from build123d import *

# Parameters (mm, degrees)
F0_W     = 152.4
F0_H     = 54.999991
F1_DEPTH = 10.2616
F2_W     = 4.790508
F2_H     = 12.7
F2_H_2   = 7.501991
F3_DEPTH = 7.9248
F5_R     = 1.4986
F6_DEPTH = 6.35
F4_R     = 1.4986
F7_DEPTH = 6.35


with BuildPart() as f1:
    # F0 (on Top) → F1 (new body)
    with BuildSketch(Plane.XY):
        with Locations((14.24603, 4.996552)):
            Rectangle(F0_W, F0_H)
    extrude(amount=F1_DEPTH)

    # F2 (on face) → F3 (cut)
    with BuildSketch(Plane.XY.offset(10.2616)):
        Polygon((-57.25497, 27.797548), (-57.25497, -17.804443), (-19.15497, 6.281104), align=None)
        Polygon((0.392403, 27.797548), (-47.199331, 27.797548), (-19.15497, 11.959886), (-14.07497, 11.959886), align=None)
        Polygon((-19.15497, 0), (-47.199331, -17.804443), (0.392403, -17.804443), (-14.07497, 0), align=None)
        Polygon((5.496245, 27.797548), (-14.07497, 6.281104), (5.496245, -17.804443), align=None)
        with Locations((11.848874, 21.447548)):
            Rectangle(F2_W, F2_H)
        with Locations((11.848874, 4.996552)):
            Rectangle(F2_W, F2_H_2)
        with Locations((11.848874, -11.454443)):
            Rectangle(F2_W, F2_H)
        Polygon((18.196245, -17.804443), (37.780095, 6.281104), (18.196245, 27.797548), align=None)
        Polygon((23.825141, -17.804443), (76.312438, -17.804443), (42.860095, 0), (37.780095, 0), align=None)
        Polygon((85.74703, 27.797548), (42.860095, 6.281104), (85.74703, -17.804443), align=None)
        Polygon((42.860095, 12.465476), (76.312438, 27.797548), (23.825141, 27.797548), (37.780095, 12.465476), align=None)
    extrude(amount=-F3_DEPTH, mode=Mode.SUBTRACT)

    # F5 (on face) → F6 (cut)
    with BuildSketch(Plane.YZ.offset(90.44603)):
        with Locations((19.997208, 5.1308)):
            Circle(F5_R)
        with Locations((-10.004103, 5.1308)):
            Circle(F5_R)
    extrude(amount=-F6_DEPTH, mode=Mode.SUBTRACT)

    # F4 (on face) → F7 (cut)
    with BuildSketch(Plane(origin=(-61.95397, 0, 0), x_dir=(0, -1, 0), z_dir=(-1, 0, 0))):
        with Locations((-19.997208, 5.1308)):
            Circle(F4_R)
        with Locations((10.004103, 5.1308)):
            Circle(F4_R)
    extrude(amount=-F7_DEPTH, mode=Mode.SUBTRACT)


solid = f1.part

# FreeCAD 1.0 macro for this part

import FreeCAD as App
import Part
import Sketcher
from FreeCAD import Vector
Q = App.Units.Quantity

doc = App.newDocument("Part")
body = doc.addObject("PartDesign::Body", "Body")

sketch1 = doc.addObject("Sketcher::SketchObject", "Sketch")
body.addObject(sketch1)
sketch1.AttachmentSupport = (doc.XY_Plane, [""])
sketch1.MapMode = "FlatFace"
sketch1.addGeometry([
    Part.LineSegment(Vector(-62, 32, 0), Vector(-62, -23, 0)),
    Part.LineSegment(Vector(-62, -23, 0), Vector(90, -23, 0)),
    Part.LineSegment(Vector(90, -23, 0), Vector(90, 32, 0)),
    Part.LineSegment(Vector(90, 32, 0), Vector(-62, 32, 0)),
], False)
sketch1.addConstraint([
    Sketcher.Constraint("Coincident", 0, 2, 1, 1),
    Sketcher.Constraint("Coincident", 1, 2, 2, 1),
    Sketcher.Constraint("Coincident", 2, 2, 3, 1),
    Sketcher.Constraint("Coincident", 3, 2, 0, 1),
    Sketcher.Constraint("Vertical", 0),
    Sketcher.Constraint("Horizontal", 1),
    Sketcher.Constraint("Vertical", 2),
    Sketcher.Constraint("Horizontal", 3),
    Sketcher.Constraint("DistanceX", 1, 1, 1, 2, Q("6 in")),
    Sketcher.Constraint("DistanceY", 0, 2, 0, 1, Q("54.999991 mm")),
    Sketcher.Constraint("DistanceX", 0, 2, -1, 1, Q("61.95397 mm")),
    Sketcher.Constraint("DistanceY", 0, 2, -1, 1, Q("22.503443 mm")),
])
pad1 = doc.addObject("PartDesign::Pad", "Pad")
body.addObject(pad1)
pad1.Profile = sketch1
pad1.Length = Q("0.404 in")

sketch2 = doc.addObject("Sketcher::SketchObject", "Sketch001")
body.addObject(sketch2)
sketch2.AttachmentSupport = (doc.XY_Plane, [""])
sketch2.MapMode = "FlatFace"
sketch2.AttachmentOffset = App.Placement(Vector(0, 0, 0.404 * 25.4), App.Rotation())
sketch2.addGeometry([
    Part.LineSegment(Vector(-57.3, 27.8, 0), Vector(-57.3, -17.8, 0)),
    Part.LineSegment(Vector(-57.3, -17.8, 0), Vector(-19.2, 6.3, 0)),
    Part.LineSegment(Vector(-19.2, 6.3, 0), Vector(-57.3, 27.8, 0)),
    Part.LineSegment(Vector(0.4, 27.8, 0), Vector(-47.2, 27.8, 0)),
    Part.LineSegment(Vector(-47.2, 27.8, 0), Vector(-19.2, 12, 0)),
    Part.LineSegment(Vector(-19.2, 12, 0), Vector(-14.1, 12, 0)),
    Part.LineSegment(Vector(-14.1, 12, 0), Vector(0.4, 27.8, 0)),
    Part.LineSegment(Vector(-19.2, 0, 0), Vector(-47.2, -17.8, 0)),
    Part.LineSegment(Vector(-47.2, -17.8, 0), Vector(0.4, -17.8, 0)),
    Part.LineSegment(Vector(0.4, -17.8, 0), Vector(-14.1, 0, 0)),
    Part.LineSegment(Vector(-14.1, 0, 0), Vector(-19.2, 0, 0)),
    Part.LineSegment(Vector(5.5, 27.8, 0), Vector(-14.1, 6.3, 0)),
    Part.LineSegment(Vector(-14.1, 6.3, 0), Vector(5.5, -17.8, 0)),
    Part.LineSegment(Vector(5.5, -17.8, 0), Vector(5.5, 27.8, 0)),
    Part.LineSegment(Vector(9.5, 27.8, 0), Vector(9.5, 15.1, 0)),
    Part.LineSegment(Vector(9.5, 15.1, 0), Vector(14.2, 15.1, 0)),
    Part.LineSegment(Vector(14.2, 15.1, 0), Vector(14.2, 27.8, 0)),
    Part.LineSegment(Vector(14.2, 27.8, 0), Vector(9.5, 27.8, 0)),
    Part.LineSegment(Vector(9.5, 8.7, 0), Vector(9.5, 1.2, 0)),
    Part.LineSegment(Vector(9.5, 1.2, 0), Vector(14.2, 1.2, 0)),
    Part.LineSegment(Vector(14.2, 1.2, 0), Vector(14.2, 8.7, 0)),
    Part.LineSegment(Vector(14.2, 8.7, 0), Vector(9.5, 8.7, 0)),
    Part.LineSegment(Vector(9.5, -5.1, 0), Vector(9.5, -17.8, 0)),
    Part.LineSegment(Vector(9.5, -17.8, 0), Vector(14.2, -17.8, 0)),
    Part.LineSegment(Vector(14.2, -17.8, 0), Vector(14.2, -5.1, 0)),
    Part.LineSegment(Vector(14.2, -5.1, 0), Vector(9.5, -5.1, 0)),
    Part.LineSegment(Vector(18.2, -17.8, 0), Vector(37.8, 6.3, 0)),
    Part.LineSegment(Vector(37.8, 6.3, 0), Vector(18.2, 27.8, 0)),
    Part.LineSegment(Vector(18.2, 27.8, 0), Vector(18.2, -17.8, 0)),
    Part.LineSegment(Vector(23.8, -17.8, 0), Vector(76.3, -17.8, 0)),
    Part.LineSegment(Vector(76.3, -17.8, 0), Vector(42.9, 0, 0)),
    Part.LineSegment(Vector(42.9, 0, 0), Vector(37.8, 0, 0)),
    Part.LineSegment(Vector(37.8, 0, 0), Vector(23.8, -17.8, 0)),
    Part.LineSegment(Vector(85.7, 27.8, 0), Vector(42.9, 6.3, 0)),
    Part.LineSegment(Vector(42.9, 6.3, 0), Vector(85.7, -17.8, 0)),
    Part.LineSegment(Vector(85.7, -17.8, 0), Vector(85.7, 27.8, 0)),
    Part.LineSegment(Vector(42.9, 12.5, 0), Vector(76.3, 27.8, 0)),
    Part.LineSegment(Vector(76.3, 27.8, 0), Vector(23.8, 27.8, 0)),
    Part.LineSegment(Vector(23.8, 27.8, 0), Vector(37.8, 12.5, 0)),
    Part.LineSegment(Vector(37.8, 12.5, 0), Vector(42.9, 12.5, 0)),
], False)
sketch2.addConstraint([
    Sketcher.Constraint("Coincident", 0, 2, 1, 1),
    Sketcher.Constraint("Coincident", 1, 2, 2, 1),
    Sketcher.Constraint("Coincident", 2, 2, 0, 1),
    Sketcher.Constraint("Coincident", 3, 2, 4, 1),
    Sketcher.Constraint("Coincident", 4, 2, 5, 1),
    Sketcher.Constraint("Coincident", 5, 2, 6, 1),
    Sketcher.Constraint("Coincident", 6, 2, 3, 1),
    Sketcher.Constraint("Coincident", 7, 2, 8, 1),
    Sketcher.Constraint("Coincident", 8, 2, 9, 1),
    Sketcher.Constraint("Coincident", 9, 2, 10, 1),
    Sketcher.Constraint("Coincident", 10, 2, 7, 1),
    Sketcher.Constraint("Coincident", 11, 2, 12, 1),
    Sketcher.Constraint("Coincident", 12, 2, 13, 1),
    Sketcher.Constraint("Coincident", 13, 2, 11, 1),
    Sketcher.Constraint("Coincident", 14, 2, 15, 1),
    Sketcher.Constraint("Coincident", 15, 2, 16, 1),
    Sketcher.Constraint("Coincident", 16, 2, 17, 1),
    Sketcher.Constraint("Coincident", 17, 2, 14, 1),
    Sketcher.Constraint("Coincident", 18, 2, 19, 1),
    Sketcher.Constraint("Coincident", 19, 2, 20, 1),
    Sketcher.Constraint("Coincident", 20, 2, 21, 1),
    Sketcher.Constraint("Coincident", 21, 2, 18, 1),
    Sketcher.Constraint("Coincident", 22, 2, 23, 1),
    Sketcher.Constraint("Coincident", 23, 2, 24, 1),
    Sketcher.Constraint("Coincident", 24, 2, 25, 1),
    Sketcher.Constraint("Coincident", 25, 2, 22, 1),
    Sketcher.Constraint("Coincident", 26, 2, 27, 1),
    Sketcher.Constraint("Coincident", 27, 2, 28, 1),
    Sketcher.Constraint("Coincident", 28, 2, 26, 1),
    Sketcher.Constraint("Coincident", 29, 2, 30, 1),
    Sketcher.Constraint("Coincident", 30, 2, 31, 1),
    Sketcher.Constraint("Coincident", 31, 2, 32, 1),
    Sketcher.Constraint("Coincident", 32, 2, 29, 1),
    Sketcher.Constraint("Coincident", 33, 2, 34, 1),
    Sketcher.Constraint("Coincident", 34, 2, 35, 1),
    Sketcher.Constraint("Coincident", 35, 2, 33, 1),
    Sketcher.Constraint("Coincident", 36, 2, 37, 1),
    Sketcher.Constraint("Coincident", 37, 2, 38, 1),
    Sketcher.Constraint("Coincident", 38, 2, 39, 1),
    Sketcher.Constraint("Coincident", 39, 2, 36, 1),
    Sketcher.Constraint("Vertical", 0),
    Sketcher.Constraint("Horizontal", 3),
    Sketcher.Constraint("Horizontal", 5),
    Sketcher.Constraint("Horizontal", 8),
    Sketcher.Constraint("Horizontal", 10),
    Sketcher.Constraint("Vertical", 13),
    Sketcher.Constraint("Vertical", 14),
    Sketcher.Constraint("Horizontal", 15),
    Sketcher.Constraint("Vertical", 16),
    Sketcher.Constraint("Horizontal", 17),
    Sketcher.Constraint("Vertical", 18),
    Sketcher.Constraint("Horizontal", 19),
    Sketcher.Constraint("Vertical", 20),
    Sketcher.Constraint("Horizontal", 21),
    Sketcher.Constraint("Vertical", 22),
    Sketcher.Constraint("Horizontal", 23),
    Sketcher.Constraint("Vertical", 24),
    Sketcher.Constraint("Horizontal", 25),
    Sketcher.Constraint("Vertical", 28),
    Sketcher.Constraint("Horizontal", 29),
    Sketcher.Constraint("Horizontal", 31),
    Sketcher.Constraint("Vertical", 35),
    Sketcher.Constraint("Horizontal", 37),
    Sketcher.Constraint("Horizontal", 39),
    Sketcher.Constraint("PointOnObject", 9, 2, -1),
    Sketcher.Constraint("PointOnObject", 30, 2, -1),
    Sketcher.Constraint("Parallel", 2, 4),
    Sketcher.Constraint("Parallel", 9, 12),
    Sketcher.Constraint("Parallel", 27, 38),
    Sketcher.Constraint("Horizontal", 2, 2, 3, 2),
    Sketcher.Constraint("Horizontal", 0, 2, 7, 2),
    Sketcher.Constraint("Horizontal", 1, 2, 11, 2),
    Sketcher.Constraint("Horizontal", 8, 2, 12, 2),
    Sketcher.Constraint("Horizontal", 6, 2, 13, 2),
    Sketcher.Constraint("Horizontal", 13, 2, 16, 2),
    Sketcher.Constraint("Horizontal", 12, 2, 22, 2),
    Sketcher.Constraint("Horizontal", 11, 2, 26, 2),
    Sketcher.Constraint("Horizontal", 17, 2, 27, 2),
    Sketcher.Constraint("Horizontal", 23, 2, 28, 2),
    Sketcher.Constraint("Horizontal", 28, 2, 29, 2),
    Sketcher.Constraint("Horizontal", 26, 2, 33, 2),
    Sketcher.Constraint("Horizontal", 32, 2, 34, 2),
    Sketcher.Constraint("Horizontal", 27, 2, 35, 2),
    Sketcher.Constraint("Horizontal", 35, 2, 36, 2),
    Sketcher.Constraint("Vertical", 1, 2, 4, 2),
    Sketcher.Constraint("Vertical", 3, 2, 7, 2),
    Sketcher.Constraint("Vertical", 6, 2, 8, 2),
    Sketcher.Constraint("Vertical", 5, 2, 9, 2),
    Sketcher.Constraint("Vertical", 4, 2, 10, 2),
    Sketcher.Constraint("Vertical", 9, 2, 11, 2),
    Sketcher.Constraint("Vertical", 17, 2, 18, 2),
    Sketcher.Constraint("Vertical", 16, 2, 19, 2),
    Sketcher.Constraint("Vertical", 21, 2, 22, 2),
    Sketcher.Constraint("Vertical", 20, 2, 23, 2),
    Sketcher.Constraint("Vertical", 26, 2, 31, 2),
    Sketcher.Constraint("Vertical", 30, 2, 33, 2),
    Sketcher.Constraint("Vertical", 29, 2, 36, 2),
    Sketcher.Constraint("Vertical", 32, 2, 37, 2),
    Sketcher.Constraint("Vertical", 31, 2, 38, 2),
    Sketcher.Constraint("Vertical", 33, 2, 39, 2),
    Sketcher.Constraint("Equal", 10, 31),
    Sketcher.Constraint("Equal", 16, 22),
    Sketcher.Constraint("DistanceX", 5, 1, 5, 2, Q("0.2 in")),
    Sketcher.Constraint("DistanceY", 14, 2, 14, 1, Q("0.5 in")),
    Sketcher.Constraint("DistanceX", 0, 2, 1, 2, Q("1.5 in")),
    Sketcher.Constraint("DistanceX", 13, 2, 27, 2, Q("0.5 in")),
    Sketcher.Constraint("DistanceY", 12, 2, 18, 2, Q("0.75 in")),
    Sketcher.Constraint("DistanceY", 20, 2, 15, 2, Q("0.25 in")),
    Sketcher.Constraint("DistanceY", 0, 2, 0, 1, Q("45.601991 mm")),
    Sketcher.Constraint("DistanceX", 5, 2, 15, 2, Q("28.319098 mm")),
    Sketcher.Constraint("Distance", 2, Q("43.755769 mm")),
    Sketcher.Constraint("Distance", 6, Q("21.450791 mm")),
    Sketcher.Constraint("Distance", 30, Q("37.895349 mm")),
    Sketcher.Constraint("Distance", 33, Q("47.981731 mm")),
    Sketcher.Constraint("Distance", 36, Q("36.798528 mm")),
    Sketcher.Constraint("DistanceX", 3, 2, 3, 1, Q("47.591734 mm")),
    Sketcher.Constraint("DistanceX", 15, 1, 15, 2, Q("4.790508 mm")),
    Sketcher.Constraint("DistanceX", 29, 1, 29, 2, Q("52.487297 mm")),
    Sketcher.Constraint("DistanceX", 0, 2, -1, 1, Q("57.25497 mm")),
    Sketcher.Constraint("DistanceX", -1, 1, 29, 2, Q("76.312438 mm")),
])
pocket1 = doc.addObject("PartDesign::Pocket", "Pocket")
body.addObject(pocket1)
pocket1.Profile = sketch2
pocket1.Length = Q("0.312 in")

sketch3 = doc.addObject("Sketcher::SketchObject", "Sketch002")
body.addObject(sketch3)
sketch3.AttachmentSupport = (doc.YZ_Plane, [""])
sketch3.MapMode = "FlatFace"
sketch3.AttachmentOffset = App.Placement(Vector(0, 0, 90.44603), App.Rotation())
sketch3.addGeometry([
    Part.Circle(Vector(20, 5.1, 0), Vector(0, 0, 1), 1.5),
    Part.Circle(Vector(-10, 5.1, 0), Vector(0, 0, 1), 1.5),
], False)
sketch3.addConstraint([
    Sketcher.Constraint("Equal", 0, 1),
    Sketcher.Constraint("Horizontal", 0, 3, 1, 3),
    Sketcher.Constraint("Diameter", 0, Q("0.118 in")),
    Sketcher.Constraint("DistanceY", -1, 1, 0, 3, Q("0.202 in")),
    Sketcher.Constraint("DistanceX", -1, 1, 0, 3, Q("19.997208 mm")),
    Sketcher.Constraint("DistanceX", 1, 3, 0, 3, Q("30.001311 mm")),
])
pocket2 = doc.addObject("PartDesign::Pocket", "Pocket001")
body.addObject(pocket2)
pocket2.Profile = sketch3
pocket2.Length = Q("0.25 in")

sketch4 = doc.addObject("Sketcher::SketchObject", "Sketch003")
body.addObject(sketch4)
sketch4.AttachmentSupport = (doc.YZ_Plane, [""])
sketch4.MapMode = "FlatFace"
sketch4.AttachmentOffset = App.Placement(Vector(0, 0, -61.95397), App.Rotation())
sketch4.addGeometry([
    Part.Circle(Vector(20, 5.1, 0), Vector(0, 0, 1), 1.5),
    Part.Circle(Vector(-10, 5.1, 0), Vector(0, 0, 1), 1.5),
], False)
sketch4.addConstraint([
    Sketcher.Constraint("Equal", 0, 1),
    Sketcher.Constraint("Horizontal", 0, 3, 1, 3),
    Sketcher.Constraint("Diameter", 0, Q("0.118 in")),
    Sketcher.Constraint("DistanceY", -1, 1, 0, 3, Q("0.202 in")),
    Sketcher.Constraint("DistanceX", -1, 1, 0, 3, Q("19.997208 mm")),
    Sketcher.Constraint("DistanceX", 1, 3, 0, 3, Q("30.001311 mm")),
])
pocket3 = doc.addObject("PartDesign::Pocket", "Pocket002")
body.addObject(pocket3)
pocket3.Profile = sketch4
pocket3.Length = Q("0.25 in")
pocket3.Reversed = True

doc.recompute()
